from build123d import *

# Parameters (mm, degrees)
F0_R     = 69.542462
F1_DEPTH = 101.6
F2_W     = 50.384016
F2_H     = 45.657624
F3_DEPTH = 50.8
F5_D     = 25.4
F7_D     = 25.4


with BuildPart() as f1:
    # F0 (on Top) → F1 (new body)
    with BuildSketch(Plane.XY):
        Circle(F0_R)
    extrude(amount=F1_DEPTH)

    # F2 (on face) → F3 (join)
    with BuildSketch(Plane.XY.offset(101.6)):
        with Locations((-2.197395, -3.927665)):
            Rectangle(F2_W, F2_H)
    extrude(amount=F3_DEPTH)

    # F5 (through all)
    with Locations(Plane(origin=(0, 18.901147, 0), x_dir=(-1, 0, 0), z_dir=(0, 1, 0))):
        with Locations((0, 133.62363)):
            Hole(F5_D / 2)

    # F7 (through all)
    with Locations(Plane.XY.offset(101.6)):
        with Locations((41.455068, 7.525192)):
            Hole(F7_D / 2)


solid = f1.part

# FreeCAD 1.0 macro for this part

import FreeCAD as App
import Part
import Sketcher

V = App.Vector
Q = App.Units.Quantity


def add_polygon(sketch, points):
    """Adds a closed chain of lines whose ends are joined by coincident constraints."""
    first, n = sketch.GeometryCount, len(points)
    for a, b in zip(points, points[1:] + points[:1]):
        sketch.addGeometry(Part.LineSegment(App.Vector(*a, 0), App.Vector(*b, 0)), False)
    for i in range(n):
        sketch.addConstraint(Sketcher.Constraint("Coincident", first + i, 2, first + (i + 1) % n, 1))

doc = App.newDocument("Part")
body = doc.addObject("PartDesign::Body", "Body")

# Sketch on XY plane
sketch1 = body.newObject("Sketcher::SketchObject", "Sketch")
sketch1.AttachmentSupport = (doc.getObject("XY_Plane"), [""])
sketch1.MapMode = "FlatFace"
sketch1.addGeometry(Part.Circle(V(0, 0, 0), V(0, 0, 1), 70), False)
sketch1.addConstraint(Sketcher.Constraint("Coincident", 0, 3, -1, 1))
sketch1.addConstraint(Sketcher.Constraint("Diameter", 0, Q("139.084924 mm")))
pad1 = body.newObject("PartDesign::Pad", "Pad")
pad1.Profile = sketch1
pad1.Length = Q("4 in")

# Sketch on XY plane
sketch2 = body.newObject("Sketcher::SketchObject", "Sketch001")
sketch2.AttachmentSupport = (doc.getObject("XY_Plane"), [""])
sketch2.MapMode = "FlatFace"
sketch2.AttachmentOffset = App.Placement(V(0, 0, 4 * 25.4), App.Rotation())
add_polygon(sketch2, [(-27, 19), (-27, -27), (23, -27), (23, 19)])  # lines 0-3
sketch2.addConstraint(Sketcher.Constraint("Vertical", 0))
sketch2.addConstraint(Sketcher.Constraint("Horizontal", 1))
sketch2.addConstraint(Sketcher.Constraint("Vertical", 2))
sketch2.addConstraint(Sketcher.Constraint("Horizontal", 3))
sketch2.addConstraint(Sketcher.Constraint("DistanceX", 1, 1, 1, 2, Q("50.384016 mm")))
sketch2.addConstraint(Sketcher.Constraint("DistanceY", 0, 2, 0, 1, Q("45.657624 mm")))
sketch2.addConstraint(Sketcher.Constraint("DistanceX", 0, 2, -1, 1, Q("27.389403 mm")))
sketch2.addConstraint(Sketcher.Constraint("DistanceY", 0, 2, -1, 1, Q("26.756477 mm")))
pad2 = body.newObject("PartDesign::Pad", "Pad001")
pad2.Profile = sketch2
pad2.Length = Q("2 in")

# Sketch on XZ plane
sketch3 = body.newObject("Sketcher::SketchObject", "Sketch002")
sketch3.AttachmentSupport = (doc.getObject("XZ_Plane"), [""])
sketch3.MapMode = "FlatFace"
sketch3.AttachmentOffset = App.Placement(V(0, 0, -18.901147), App.Rotation())
sketch3.addGeometry(Part.Circle(V(0, 134, 0), V(0, 0, 1), 13), False)
sketch3.addConstraint(Sketcher.Constraint("PointOnObject", 0, 3, -2))
sketch3.addConstraint(Sketcher.Constraint("Diameter", 0, Q("1 in")))
sketch3.addConstraint(Sketcher.Constraint("DistanceY", -1, 1, 0, 3, Q("133.62363 mm")))
doc.recompute()
hole = body.newObject("PartDesign::Hole", "Hole")
hole.Profile = sketch3
hole.ThreadType = "None"
hole.Diameter = Q("1 in")
hole.DepthType = "ThroughAll"
hole.Reversed = True

# Sketch on XY plane
sketch4 = body.newObject("Sketcher::SketchObject", "Sketch003")
sketch4.AttachmentSupport = (doc.getObject("XY_Plane"), [""])
sketch4.MapMode = "FlatFace"
sketch4.AttachmentOffset = App.Placement(V(0, 0, 4 * 25.4), App.Rotation())
sketch4.addGeometry(Part.Circle(V(41, 8, 0), V(0, 0, 1), 13), False)
sketch4.addConstraint(Sketcher.Constraint("Diameter", 0, Q("1 in")))
sketch4.addConstraint(Sketcher.Constraint("DistanceY", -1, 1, 0, 3, Q("7.525192 mm")))
sketch4.addConstraint(Sketcher.Constraint("DistanceX", -1, 1, 0, 3, Q("41.455068 mm")))
doc.recompute()
hole2 = body.newObject("PartDesign::Hole", "Hole001")
hole2.Profile = sketch4
hole2.ThreadType = "None"
hole2.Diameter = Q("1 in")
hole2.DepthType = "ThroughAll"

doc.recompute()
